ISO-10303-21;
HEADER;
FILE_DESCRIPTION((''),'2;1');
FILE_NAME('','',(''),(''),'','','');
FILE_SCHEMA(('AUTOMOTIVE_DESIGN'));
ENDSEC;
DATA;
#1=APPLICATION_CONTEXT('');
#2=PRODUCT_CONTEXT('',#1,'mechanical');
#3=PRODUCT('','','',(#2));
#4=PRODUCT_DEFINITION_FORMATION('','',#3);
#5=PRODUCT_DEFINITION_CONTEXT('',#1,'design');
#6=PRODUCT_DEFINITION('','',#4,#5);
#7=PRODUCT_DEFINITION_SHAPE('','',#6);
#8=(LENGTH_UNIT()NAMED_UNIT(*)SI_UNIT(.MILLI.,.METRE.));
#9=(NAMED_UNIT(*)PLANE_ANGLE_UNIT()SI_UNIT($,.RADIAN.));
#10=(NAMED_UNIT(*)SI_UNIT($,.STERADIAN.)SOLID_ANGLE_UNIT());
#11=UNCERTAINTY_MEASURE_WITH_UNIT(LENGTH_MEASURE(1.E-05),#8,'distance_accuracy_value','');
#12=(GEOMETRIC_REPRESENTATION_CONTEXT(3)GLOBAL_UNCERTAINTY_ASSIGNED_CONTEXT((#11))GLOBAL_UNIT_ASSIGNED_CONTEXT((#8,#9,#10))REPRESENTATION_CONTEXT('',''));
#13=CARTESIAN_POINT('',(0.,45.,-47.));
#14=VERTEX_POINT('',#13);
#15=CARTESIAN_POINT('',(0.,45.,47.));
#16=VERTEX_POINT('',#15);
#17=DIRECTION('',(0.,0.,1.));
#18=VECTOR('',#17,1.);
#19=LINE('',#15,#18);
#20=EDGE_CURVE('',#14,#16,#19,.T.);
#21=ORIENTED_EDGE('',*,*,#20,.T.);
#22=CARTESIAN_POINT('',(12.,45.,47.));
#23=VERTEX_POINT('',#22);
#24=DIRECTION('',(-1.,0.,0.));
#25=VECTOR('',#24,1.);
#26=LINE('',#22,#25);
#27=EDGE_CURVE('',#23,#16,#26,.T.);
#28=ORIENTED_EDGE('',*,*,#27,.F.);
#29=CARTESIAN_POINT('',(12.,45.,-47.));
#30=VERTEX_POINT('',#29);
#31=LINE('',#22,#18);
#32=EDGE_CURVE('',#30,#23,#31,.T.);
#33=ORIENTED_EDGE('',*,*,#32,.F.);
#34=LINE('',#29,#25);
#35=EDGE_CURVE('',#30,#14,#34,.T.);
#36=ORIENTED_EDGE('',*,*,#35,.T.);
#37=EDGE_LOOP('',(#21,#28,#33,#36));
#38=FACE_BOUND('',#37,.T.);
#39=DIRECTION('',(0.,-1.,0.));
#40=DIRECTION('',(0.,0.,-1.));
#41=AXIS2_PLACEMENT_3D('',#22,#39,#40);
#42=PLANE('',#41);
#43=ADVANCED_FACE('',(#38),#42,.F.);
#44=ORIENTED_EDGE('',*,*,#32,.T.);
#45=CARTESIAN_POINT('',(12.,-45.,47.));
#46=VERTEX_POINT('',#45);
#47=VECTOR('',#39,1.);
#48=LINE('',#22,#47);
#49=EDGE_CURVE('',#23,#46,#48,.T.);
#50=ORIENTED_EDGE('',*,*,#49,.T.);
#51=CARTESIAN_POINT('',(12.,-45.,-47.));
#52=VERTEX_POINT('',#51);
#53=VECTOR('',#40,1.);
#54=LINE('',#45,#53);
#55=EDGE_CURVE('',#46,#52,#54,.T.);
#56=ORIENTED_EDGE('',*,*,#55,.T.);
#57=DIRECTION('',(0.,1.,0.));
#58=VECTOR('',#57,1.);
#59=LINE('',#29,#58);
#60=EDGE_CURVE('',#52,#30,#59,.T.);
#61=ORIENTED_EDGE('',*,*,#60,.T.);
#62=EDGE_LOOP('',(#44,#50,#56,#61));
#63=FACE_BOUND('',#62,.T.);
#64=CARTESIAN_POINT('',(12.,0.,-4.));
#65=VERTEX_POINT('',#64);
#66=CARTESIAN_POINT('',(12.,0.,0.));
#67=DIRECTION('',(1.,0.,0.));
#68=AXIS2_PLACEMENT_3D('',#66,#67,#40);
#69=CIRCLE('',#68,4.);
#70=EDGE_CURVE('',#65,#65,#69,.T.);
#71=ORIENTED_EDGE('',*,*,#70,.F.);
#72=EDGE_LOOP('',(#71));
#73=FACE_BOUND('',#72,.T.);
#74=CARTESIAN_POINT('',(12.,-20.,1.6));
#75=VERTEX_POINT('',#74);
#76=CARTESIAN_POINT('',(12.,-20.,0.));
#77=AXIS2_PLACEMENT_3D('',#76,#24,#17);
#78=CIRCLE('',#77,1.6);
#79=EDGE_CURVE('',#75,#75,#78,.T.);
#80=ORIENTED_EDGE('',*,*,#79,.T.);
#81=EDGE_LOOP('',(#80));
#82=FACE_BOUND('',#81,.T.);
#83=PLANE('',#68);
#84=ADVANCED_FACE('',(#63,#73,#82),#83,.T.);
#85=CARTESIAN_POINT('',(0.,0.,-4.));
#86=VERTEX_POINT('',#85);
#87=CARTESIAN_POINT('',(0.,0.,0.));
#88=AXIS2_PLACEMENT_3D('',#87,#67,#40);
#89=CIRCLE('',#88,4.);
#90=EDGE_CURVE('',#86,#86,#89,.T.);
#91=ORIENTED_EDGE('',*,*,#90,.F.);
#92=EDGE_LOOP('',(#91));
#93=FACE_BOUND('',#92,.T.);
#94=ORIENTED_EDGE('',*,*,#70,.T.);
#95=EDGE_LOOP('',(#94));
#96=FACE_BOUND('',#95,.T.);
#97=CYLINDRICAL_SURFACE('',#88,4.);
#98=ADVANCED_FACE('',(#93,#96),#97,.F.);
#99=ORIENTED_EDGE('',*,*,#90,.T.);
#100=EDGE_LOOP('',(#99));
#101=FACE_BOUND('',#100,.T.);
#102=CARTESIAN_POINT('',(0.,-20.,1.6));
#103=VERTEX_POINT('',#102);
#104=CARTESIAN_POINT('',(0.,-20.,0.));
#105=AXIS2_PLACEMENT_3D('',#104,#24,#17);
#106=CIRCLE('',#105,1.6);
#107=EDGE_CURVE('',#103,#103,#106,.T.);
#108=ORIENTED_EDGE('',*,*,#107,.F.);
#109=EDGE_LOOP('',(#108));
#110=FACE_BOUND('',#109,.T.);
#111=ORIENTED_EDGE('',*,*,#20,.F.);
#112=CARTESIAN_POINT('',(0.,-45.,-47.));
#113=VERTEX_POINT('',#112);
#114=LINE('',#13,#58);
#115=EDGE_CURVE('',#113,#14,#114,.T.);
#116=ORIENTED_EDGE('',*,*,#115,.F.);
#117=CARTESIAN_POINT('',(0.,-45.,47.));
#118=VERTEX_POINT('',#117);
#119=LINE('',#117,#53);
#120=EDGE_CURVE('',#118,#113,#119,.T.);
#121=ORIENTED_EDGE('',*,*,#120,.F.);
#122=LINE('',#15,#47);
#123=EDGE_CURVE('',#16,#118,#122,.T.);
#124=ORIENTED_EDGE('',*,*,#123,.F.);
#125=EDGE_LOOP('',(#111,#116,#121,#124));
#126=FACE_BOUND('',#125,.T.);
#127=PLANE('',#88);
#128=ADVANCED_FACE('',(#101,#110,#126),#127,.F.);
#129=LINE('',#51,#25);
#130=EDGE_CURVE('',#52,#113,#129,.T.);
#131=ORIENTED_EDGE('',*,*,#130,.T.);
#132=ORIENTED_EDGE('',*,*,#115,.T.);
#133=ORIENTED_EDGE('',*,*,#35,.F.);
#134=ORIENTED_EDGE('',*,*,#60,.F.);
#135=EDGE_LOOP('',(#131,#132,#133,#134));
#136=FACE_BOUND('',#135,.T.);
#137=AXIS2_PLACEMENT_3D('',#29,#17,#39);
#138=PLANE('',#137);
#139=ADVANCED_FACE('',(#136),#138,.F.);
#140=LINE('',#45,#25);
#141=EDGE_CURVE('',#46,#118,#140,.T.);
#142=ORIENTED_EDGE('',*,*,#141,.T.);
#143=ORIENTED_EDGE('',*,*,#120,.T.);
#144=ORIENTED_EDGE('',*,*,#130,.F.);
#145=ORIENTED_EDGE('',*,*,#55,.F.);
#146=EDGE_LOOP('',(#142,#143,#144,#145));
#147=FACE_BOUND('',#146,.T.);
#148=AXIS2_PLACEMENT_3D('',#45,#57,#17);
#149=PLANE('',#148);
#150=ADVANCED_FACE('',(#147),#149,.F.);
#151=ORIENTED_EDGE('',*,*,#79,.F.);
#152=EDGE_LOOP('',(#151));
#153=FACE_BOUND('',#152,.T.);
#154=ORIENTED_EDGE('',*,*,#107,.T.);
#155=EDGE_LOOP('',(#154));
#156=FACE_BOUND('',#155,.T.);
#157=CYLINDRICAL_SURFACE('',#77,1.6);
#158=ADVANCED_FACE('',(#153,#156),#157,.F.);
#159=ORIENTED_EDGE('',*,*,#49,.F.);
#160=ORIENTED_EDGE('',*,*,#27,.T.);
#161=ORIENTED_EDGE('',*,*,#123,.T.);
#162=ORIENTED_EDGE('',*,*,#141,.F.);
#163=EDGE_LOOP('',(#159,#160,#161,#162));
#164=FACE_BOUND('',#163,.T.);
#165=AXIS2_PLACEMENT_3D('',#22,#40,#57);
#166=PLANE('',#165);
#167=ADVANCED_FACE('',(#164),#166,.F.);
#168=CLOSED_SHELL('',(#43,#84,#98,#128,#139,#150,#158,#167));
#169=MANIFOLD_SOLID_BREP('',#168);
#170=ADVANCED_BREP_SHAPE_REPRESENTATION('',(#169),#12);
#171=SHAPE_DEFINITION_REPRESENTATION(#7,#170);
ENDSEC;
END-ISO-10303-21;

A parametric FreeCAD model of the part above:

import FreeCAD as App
import Part
import Sketcher
Q = App.Units.Quantity

doc = App.newDocument("Part")
params = doc.addObject("Spreadsheet::Sheet", "Params")
for row, (alias, value) in enumerate([
    ("sketch1_width", "90 mm"),
    ("sketch1_height", "94 mm"),
    ("pad1_length", "12 mm"),
    ("sketch2_diameter", "8 mm"),
    ("sketch3_diameter", "3.2 mm"),
], start=1):
    params.set(f"A{row}", alias)
    params.set(f"B{row}", "=" + value)
    params.setAlias(f"B{row}", alias)

body = doc.addObject("PartDesign::Body", "Body")

sketch1 = body.newObject("Sketcher::SketchObject", "Sketch")
sketch1.AttachmentSupport = (doc.getObject("YZ_Plane"), [""])
sketch1.MapMode = "FlatFace"
sketch1.addGeometry(Part.LineSegment(App.Vector(45, 47, 0), App.Vector(-45, 47, 0)), False)
sketch1.addGeometry(Part.LineSegment(App.Vector(-45, 47, 0), App.Vector(-45, -47, 0)), False)
sketch1.addGeometry(Part.LineSegment(App.Vector(-45, -47, 0), App.Vector(45, -47, 0)), False)
sketch1.addGeometry(Part.LineSegment(App.Vector(45, -47, 0), App.Vector(45, 47, 0)), False)
sketch1.addConstraint(Sketcher.Constraint("Coincident", 0, 2, 1, 1))
sketch1.addConstraint(Sketcher.Constraint("Coincident", 1, 2, 2, 1))
sketch1.addConstraint(Sketcher.Constraint("Coincident", 2, 2, 3, 1))
sketch1.addConstraint(Sketcher.Constraint("Coincident", 3, 2, 0, 1))
sketch1.addConstraint(Sketcher.Constraint("Horizontal", 0))
sketch1.addConstraint(Sketcher.Constraint("Vertical", 1))
sketch1.addConstraint(Sketcher.Constraint("Horizontal", 2))
sketch1.addConstraint(Sketcher.Constraint("Vertical", 3))
sketch1.addConstraint(Sketcher.Constraint("Symmetric", 0, 2, 2, 2, -1, 1))
sketch1.addConstraint(Sketcher.Constraint("DistanceX", 0, 2, 0, 1, Q("90 mm")))
sketch1.addConstraint(Sketcher.Constraint("DistanceY", 1, 2, 1, 1, Q("94 mm")))
sketch1.setExpression("Constraints[9]", "Params.sketch1_width")
sketch1.setExpression("Constraints[10]", "Params.sketch1_height")
pad1 = body.newObject("PartDesign::Pad", "Pad")
pad1.Profile = sketch1
pad1.setExpression("Length", "Params.pad1_length")

sketch2 = body.newObject("Sketcher::SketchObject", "Sketch001")
sketch2.AttachmentSupport = (doc.getObject("YZ_Plane"), [""])
sketch2.MapMode = "FlatFace"
sketch2.AttachmentOffset = App.Placement(App.Vector(0, 0, 12), App.Rotation())
sketch2.addGeometry(Part.Circle(App.Vector(0, 0, 0), App.Vector(0, 0, 1), 4), False)
sketch2.addConstraint(Sketcher.Constraint("Coincident", 0, 3, -1, 1))
sketch2.addConstraint(Sketcher.Constraint("Diameter", 0, Q("8 mm")))
sketch2.setExpression("Constraints[1]", "Params.sketch2_diameter")
pocket1 = body.newObject("PartDesign::Pocket", "Pocket")
pocket1.Profile = sketch2
pocket1.Type = "ThroughAll"

sketch3 = body.newObject("Sketcher::SketchObject", "Sketch002")
sketch3.AttachmentSupport = (doc.getObject("YZ_Plane"), [""])
sketch3.MapMode = "FlatFace"
sketch3.addGeometry(Part.Circle(App.Vector(-20, 0, 0), App.Vector(0, 0, 1), 1.6), False)
sketch3.addConstraint(Sketcher.Constraint("PointOnObject", 0, 3, -1))
sketch3.addConstraint(Sketcher.Constraint("Diameter", 0, Q("3.2 mm")))
sketch3.addConstraint(Sketcher.Constraint("DistanceX", 0, 3, -1, 1, Q("20 mm")))
sketch3.setExpression("Constraints[1]", "Params.sketch3_diameter")
pocket2 = body.newObject("PartDesign::Pocket", "Pocket001")
pocket2.Profile = sketch3
pocket2.Type = "ThroughAll"
pocket2.Reversed = True

doc.recompute()
